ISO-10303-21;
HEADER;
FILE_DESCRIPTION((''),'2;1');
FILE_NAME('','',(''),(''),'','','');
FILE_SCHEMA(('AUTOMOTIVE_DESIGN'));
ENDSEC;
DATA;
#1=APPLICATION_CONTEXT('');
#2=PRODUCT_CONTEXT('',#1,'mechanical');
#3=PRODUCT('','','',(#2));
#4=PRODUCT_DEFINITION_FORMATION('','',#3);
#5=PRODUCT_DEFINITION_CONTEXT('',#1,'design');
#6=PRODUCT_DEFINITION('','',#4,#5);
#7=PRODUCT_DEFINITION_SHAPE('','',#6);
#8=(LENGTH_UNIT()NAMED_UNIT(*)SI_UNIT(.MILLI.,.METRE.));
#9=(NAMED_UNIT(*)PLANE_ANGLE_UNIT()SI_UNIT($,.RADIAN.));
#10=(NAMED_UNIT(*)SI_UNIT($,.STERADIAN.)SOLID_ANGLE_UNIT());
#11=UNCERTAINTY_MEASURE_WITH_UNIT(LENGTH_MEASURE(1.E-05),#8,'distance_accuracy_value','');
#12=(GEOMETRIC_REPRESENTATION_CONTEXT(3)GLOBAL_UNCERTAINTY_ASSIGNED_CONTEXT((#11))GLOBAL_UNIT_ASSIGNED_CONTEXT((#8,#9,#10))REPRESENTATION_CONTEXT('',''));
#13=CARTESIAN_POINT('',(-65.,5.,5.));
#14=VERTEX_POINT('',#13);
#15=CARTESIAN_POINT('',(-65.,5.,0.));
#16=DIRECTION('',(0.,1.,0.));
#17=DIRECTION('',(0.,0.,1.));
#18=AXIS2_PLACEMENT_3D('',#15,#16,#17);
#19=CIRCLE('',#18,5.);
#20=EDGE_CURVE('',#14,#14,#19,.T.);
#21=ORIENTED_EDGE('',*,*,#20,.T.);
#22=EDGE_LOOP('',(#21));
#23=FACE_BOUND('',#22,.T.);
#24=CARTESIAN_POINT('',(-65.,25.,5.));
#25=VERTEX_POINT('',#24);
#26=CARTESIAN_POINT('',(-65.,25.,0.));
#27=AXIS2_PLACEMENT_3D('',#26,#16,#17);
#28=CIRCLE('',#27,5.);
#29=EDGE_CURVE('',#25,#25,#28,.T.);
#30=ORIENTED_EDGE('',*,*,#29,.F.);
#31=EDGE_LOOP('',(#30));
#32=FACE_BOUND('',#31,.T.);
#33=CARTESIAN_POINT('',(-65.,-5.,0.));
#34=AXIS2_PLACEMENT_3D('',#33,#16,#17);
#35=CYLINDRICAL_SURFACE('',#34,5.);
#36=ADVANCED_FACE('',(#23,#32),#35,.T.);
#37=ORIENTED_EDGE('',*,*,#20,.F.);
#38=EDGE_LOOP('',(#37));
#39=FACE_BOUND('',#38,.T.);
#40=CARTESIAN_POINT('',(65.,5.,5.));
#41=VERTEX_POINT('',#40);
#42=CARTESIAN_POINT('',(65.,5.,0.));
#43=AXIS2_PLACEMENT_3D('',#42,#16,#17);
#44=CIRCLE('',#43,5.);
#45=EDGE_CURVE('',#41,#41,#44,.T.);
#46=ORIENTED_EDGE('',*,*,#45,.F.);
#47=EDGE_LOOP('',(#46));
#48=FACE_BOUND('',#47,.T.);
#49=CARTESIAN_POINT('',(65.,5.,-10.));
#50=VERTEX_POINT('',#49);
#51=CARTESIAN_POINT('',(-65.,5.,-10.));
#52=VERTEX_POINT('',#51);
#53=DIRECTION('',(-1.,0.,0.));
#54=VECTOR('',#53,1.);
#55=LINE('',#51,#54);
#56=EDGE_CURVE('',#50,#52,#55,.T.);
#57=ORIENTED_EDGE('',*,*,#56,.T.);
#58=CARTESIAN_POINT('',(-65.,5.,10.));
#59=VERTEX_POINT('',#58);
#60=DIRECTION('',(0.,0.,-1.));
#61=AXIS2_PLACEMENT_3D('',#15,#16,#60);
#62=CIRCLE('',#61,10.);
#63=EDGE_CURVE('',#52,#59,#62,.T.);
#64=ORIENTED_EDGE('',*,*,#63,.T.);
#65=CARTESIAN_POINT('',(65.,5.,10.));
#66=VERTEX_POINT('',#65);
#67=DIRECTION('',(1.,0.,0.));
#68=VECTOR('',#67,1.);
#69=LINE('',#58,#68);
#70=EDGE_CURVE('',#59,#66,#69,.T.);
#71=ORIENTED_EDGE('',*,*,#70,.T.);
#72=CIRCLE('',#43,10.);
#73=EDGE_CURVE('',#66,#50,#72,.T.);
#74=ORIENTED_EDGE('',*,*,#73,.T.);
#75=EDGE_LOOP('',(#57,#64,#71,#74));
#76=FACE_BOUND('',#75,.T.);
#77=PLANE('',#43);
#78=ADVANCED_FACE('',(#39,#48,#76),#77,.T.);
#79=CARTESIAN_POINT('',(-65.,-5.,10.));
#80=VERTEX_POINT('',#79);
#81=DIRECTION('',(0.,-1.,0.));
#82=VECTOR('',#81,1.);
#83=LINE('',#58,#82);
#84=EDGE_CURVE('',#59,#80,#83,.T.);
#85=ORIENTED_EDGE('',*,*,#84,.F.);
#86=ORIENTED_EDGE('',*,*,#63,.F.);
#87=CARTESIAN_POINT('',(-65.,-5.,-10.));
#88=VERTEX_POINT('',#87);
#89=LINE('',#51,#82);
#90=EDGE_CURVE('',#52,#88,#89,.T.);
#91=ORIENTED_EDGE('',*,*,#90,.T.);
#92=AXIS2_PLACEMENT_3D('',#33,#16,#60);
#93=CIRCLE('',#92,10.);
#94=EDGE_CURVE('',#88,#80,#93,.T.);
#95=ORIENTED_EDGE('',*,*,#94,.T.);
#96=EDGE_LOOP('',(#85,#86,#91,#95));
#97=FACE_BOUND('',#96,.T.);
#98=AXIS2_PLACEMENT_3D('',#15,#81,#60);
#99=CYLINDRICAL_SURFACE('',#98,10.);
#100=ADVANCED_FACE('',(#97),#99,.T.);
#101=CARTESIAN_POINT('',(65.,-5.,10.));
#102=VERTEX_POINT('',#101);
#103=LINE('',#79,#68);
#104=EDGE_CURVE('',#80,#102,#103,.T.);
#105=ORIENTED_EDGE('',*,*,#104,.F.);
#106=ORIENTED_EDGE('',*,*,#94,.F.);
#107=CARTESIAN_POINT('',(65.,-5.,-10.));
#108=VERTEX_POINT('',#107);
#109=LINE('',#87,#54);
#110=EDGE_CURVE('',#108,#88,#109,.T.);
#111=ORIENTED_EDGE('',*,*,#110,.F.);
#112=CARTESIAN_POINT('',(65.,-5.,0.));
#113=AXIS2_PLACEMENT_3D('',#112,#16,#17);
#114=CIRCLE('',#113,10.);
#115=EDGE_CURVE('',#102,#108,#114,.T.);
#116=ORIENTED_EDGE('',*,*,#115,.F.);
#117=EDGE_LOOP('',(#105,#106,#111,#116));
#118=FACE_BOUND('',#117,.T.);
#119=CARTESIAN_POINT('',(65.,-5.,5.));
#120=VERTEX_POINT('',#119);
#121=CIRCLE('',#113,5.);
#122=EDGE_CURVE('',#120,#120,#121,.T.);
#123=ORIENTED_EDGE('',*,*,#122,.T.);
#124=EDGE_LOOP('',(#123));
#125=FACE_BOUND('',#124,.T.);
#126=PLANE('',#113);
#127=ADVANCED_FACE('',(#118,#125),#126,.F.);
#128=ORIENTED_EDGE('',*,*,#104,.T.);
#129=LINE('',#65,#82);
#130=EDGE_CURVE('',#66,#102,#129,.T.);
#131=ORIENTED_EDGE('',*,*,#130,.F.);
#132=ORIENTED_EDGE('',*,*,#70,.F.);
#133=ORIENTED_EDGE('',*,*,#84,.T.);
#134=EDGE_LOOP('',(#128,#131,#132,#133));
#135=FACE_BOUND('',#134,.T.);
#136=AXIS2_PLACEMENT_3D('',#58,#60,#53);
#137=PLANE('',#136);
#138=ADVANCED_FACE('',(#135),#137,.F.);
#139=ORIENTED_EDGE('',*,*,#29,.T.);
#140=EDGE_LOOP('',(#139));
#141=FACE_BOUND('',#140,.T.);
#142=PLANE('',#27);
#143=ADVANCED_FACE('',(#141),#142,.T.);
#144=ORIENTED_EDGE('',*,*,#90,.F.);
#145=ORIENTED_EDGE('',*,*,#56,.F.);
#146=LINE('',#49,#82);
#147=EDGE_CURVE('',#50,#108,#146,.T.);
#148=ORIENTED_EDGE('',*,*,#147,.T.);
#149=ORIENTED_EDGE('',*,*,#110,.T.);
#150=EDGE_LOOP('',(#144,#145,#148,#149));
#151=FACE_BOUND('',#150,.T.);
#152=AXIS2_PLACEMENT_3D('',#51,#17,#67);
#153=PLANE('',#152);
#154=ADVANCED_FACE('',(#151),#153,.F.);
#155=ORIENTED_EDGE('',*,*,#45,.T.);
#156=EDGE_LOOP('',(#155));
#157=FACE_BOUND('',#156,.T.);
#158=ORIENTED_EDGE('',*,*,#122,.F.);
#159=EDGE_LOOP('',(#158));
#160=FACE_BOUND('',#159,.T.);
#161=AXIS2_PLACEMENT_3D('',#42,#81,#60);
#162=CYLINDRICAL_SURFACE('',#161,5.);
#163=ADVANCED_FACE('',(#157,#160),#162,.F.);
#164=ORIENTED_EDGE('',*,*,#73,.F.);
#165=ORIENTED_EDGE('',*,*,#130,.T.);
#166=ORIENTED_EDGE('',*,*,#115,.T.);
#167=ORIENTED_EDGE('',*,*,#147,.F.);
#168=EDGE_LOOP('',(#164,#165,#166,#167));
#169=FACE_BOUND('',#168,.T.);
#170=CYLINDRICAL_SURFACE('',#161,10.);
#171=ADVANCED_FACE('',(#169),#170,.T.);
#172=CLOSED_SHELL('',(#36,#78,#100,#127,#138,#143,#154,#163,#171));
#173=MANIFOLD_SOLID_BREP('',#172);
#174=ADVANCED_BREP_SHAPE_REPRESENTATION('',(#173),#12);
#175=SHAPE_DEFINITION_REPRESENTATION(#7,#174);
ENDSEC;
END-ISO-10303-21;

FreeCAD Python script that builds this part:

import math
import FreeCAD as App
import Part
import Sketcher
from FreeCAD import Vector
Q = App.Units.Quantity

doc = App.newDocument("Part")
params = doc.addObject("Spreadsheet::Sheet", "Params")
for row, (alias, value) in enumerate([
    ("sketch1_diameter", "10 mm"),
    ("sketch1_radius", "10 mm"),
    ("sketch1_width", "130 mm"),
    ("pad1_length", "10 mm"),
    ("sketch2_diameter", "10 mm"),
    ("pad2_length", "25 mm"),
    ("pad2_length2", "5 mm"),
], start=1):
    params.set(f"A{row}", alias)
    params.set(f"B{row}", "=" + value)
    params.setAlias(f"B{row}", alias)

body = doc.addObject("PartDesign::Body", "Body")

# Sketch on XZ plane
sketch1 = doc.addObject("Sketcher::SketchObject", "Sketch")
body.addObject(sketch1)
sketch1.AttachmentSupport = (doc.XZ_Plane, [""])
sketch1.MapMode = "FlatFace"
sketch1.addGeometry([
    Part.LineSegment(Vector(-65, 10, 0), Vector(65, 10, 0)),  # 0
    Part.ArcOfCircle(Part.Circle(Vector(65, 0, 0), Vector(0, 0, 1), 10), math.radians(-90), math.radians(90)),  # 1
    Part.LineSegment(Vector(65, -10, 0), Vector(-65, -10, 0)),  # 2
    Part.ArcOfCircle(Part.Circle(Vector(-65, 0, 0), Vector(0, 0, 1), 10), math.radians(90), math.radians(270)),  # 3
    Part.Circle(Vector(-65, 0, 0), Vector(0, 0, 1), 5),  # 4
    Part.Circle(Vector(65, 0, 0), Vector(0, 0, 1), 5),  # 5
], False)
sketch1.addConstraint([
    Sketcher.Constraint("Tangent", 0, 2, 1, 2),
    Sketcher.Constraint("Tangent", 1, 1, 2, 1),
    Sketcher.Constraint("Tangent", 2, 2, 3, 2),
    Sketcher.Constraint("Tangent", 3, 1, 0, 1),
    Sketcher.Constraint("Horizontal", 0),
    Sketcher.Constraint("Horizontal", 2),
    Sketcher.Constraint("Coincident", 4, 3, 3, 3),
    Sketcher.Constraint("Coincident", 5, 3, 1, 3),
    Sketcher.Constraint("Equal", 4, 5),
    Sketcher.Constraint("Symmetric", 1, 3, 3, 3, -1, 1),
    Sketcher.Constraint("Diameter", 4, Q("10 mm")),
    Sketcher.Constraint("Radius", 1, Q("10 mm")),
    Sketcher.Constraint("DistanceX", 0, 1, 0, 2, Q("130 mm")),
])
sketch1.setExpression("Constraints[10]", "Params.sketch1_diameter")
sketch1.setExpression("Constraints[11]", "Params.sketch1_radius")
sketch1.setExpression("Constraints[12]", "Params.sketch1_width")
pad1 = doc.addObject("PartDesign::Pad", "Pad")
body.addObject(pad1)
pad1.Profile = sketch1
pad1.setExpression("Length", "Params.pad1_length")
pad1.Midplane = True

# Sketch on XZ plane
sketch2 = doc.addObject("Sketcher::SketchObject", "Sketch001")
body.addObject(sketch2)
sketch2.AttachmentSupport = (doc.XZ_Plane, [""])
sketch2.MapMode = "FlatFace"
sketch2.addGeometry(Part.Circle(Vector(-65, 0, 0), Vector(0, 0, 1), 5), False)
sketch2.addConstraint([
    Sketcher.Constraint("PointOnObject", 0, 3, -1),
    Sketcher.Constraint("Diameter", 0, Q("10 mm")),
    Sketcher.Constraint("DistanceX", 0, 3, -1, 1, Q("65 mm")),
])
sketch2.setExpression("Constraints[1]", "Params.sketch2_diameter")
pad2 = doc.addObject("PartDesign::Pad", "Pad001")
body.addObject(pad2)
pad2.Profile = sketch2
pad2.Type = "TwoLengths"
pad2.setExpression("Length", "Params.pad2_length")
pad2.setExpression("Length2", "Params.pad2_length2")
pad2.Reversed = True

doc.recompute()
